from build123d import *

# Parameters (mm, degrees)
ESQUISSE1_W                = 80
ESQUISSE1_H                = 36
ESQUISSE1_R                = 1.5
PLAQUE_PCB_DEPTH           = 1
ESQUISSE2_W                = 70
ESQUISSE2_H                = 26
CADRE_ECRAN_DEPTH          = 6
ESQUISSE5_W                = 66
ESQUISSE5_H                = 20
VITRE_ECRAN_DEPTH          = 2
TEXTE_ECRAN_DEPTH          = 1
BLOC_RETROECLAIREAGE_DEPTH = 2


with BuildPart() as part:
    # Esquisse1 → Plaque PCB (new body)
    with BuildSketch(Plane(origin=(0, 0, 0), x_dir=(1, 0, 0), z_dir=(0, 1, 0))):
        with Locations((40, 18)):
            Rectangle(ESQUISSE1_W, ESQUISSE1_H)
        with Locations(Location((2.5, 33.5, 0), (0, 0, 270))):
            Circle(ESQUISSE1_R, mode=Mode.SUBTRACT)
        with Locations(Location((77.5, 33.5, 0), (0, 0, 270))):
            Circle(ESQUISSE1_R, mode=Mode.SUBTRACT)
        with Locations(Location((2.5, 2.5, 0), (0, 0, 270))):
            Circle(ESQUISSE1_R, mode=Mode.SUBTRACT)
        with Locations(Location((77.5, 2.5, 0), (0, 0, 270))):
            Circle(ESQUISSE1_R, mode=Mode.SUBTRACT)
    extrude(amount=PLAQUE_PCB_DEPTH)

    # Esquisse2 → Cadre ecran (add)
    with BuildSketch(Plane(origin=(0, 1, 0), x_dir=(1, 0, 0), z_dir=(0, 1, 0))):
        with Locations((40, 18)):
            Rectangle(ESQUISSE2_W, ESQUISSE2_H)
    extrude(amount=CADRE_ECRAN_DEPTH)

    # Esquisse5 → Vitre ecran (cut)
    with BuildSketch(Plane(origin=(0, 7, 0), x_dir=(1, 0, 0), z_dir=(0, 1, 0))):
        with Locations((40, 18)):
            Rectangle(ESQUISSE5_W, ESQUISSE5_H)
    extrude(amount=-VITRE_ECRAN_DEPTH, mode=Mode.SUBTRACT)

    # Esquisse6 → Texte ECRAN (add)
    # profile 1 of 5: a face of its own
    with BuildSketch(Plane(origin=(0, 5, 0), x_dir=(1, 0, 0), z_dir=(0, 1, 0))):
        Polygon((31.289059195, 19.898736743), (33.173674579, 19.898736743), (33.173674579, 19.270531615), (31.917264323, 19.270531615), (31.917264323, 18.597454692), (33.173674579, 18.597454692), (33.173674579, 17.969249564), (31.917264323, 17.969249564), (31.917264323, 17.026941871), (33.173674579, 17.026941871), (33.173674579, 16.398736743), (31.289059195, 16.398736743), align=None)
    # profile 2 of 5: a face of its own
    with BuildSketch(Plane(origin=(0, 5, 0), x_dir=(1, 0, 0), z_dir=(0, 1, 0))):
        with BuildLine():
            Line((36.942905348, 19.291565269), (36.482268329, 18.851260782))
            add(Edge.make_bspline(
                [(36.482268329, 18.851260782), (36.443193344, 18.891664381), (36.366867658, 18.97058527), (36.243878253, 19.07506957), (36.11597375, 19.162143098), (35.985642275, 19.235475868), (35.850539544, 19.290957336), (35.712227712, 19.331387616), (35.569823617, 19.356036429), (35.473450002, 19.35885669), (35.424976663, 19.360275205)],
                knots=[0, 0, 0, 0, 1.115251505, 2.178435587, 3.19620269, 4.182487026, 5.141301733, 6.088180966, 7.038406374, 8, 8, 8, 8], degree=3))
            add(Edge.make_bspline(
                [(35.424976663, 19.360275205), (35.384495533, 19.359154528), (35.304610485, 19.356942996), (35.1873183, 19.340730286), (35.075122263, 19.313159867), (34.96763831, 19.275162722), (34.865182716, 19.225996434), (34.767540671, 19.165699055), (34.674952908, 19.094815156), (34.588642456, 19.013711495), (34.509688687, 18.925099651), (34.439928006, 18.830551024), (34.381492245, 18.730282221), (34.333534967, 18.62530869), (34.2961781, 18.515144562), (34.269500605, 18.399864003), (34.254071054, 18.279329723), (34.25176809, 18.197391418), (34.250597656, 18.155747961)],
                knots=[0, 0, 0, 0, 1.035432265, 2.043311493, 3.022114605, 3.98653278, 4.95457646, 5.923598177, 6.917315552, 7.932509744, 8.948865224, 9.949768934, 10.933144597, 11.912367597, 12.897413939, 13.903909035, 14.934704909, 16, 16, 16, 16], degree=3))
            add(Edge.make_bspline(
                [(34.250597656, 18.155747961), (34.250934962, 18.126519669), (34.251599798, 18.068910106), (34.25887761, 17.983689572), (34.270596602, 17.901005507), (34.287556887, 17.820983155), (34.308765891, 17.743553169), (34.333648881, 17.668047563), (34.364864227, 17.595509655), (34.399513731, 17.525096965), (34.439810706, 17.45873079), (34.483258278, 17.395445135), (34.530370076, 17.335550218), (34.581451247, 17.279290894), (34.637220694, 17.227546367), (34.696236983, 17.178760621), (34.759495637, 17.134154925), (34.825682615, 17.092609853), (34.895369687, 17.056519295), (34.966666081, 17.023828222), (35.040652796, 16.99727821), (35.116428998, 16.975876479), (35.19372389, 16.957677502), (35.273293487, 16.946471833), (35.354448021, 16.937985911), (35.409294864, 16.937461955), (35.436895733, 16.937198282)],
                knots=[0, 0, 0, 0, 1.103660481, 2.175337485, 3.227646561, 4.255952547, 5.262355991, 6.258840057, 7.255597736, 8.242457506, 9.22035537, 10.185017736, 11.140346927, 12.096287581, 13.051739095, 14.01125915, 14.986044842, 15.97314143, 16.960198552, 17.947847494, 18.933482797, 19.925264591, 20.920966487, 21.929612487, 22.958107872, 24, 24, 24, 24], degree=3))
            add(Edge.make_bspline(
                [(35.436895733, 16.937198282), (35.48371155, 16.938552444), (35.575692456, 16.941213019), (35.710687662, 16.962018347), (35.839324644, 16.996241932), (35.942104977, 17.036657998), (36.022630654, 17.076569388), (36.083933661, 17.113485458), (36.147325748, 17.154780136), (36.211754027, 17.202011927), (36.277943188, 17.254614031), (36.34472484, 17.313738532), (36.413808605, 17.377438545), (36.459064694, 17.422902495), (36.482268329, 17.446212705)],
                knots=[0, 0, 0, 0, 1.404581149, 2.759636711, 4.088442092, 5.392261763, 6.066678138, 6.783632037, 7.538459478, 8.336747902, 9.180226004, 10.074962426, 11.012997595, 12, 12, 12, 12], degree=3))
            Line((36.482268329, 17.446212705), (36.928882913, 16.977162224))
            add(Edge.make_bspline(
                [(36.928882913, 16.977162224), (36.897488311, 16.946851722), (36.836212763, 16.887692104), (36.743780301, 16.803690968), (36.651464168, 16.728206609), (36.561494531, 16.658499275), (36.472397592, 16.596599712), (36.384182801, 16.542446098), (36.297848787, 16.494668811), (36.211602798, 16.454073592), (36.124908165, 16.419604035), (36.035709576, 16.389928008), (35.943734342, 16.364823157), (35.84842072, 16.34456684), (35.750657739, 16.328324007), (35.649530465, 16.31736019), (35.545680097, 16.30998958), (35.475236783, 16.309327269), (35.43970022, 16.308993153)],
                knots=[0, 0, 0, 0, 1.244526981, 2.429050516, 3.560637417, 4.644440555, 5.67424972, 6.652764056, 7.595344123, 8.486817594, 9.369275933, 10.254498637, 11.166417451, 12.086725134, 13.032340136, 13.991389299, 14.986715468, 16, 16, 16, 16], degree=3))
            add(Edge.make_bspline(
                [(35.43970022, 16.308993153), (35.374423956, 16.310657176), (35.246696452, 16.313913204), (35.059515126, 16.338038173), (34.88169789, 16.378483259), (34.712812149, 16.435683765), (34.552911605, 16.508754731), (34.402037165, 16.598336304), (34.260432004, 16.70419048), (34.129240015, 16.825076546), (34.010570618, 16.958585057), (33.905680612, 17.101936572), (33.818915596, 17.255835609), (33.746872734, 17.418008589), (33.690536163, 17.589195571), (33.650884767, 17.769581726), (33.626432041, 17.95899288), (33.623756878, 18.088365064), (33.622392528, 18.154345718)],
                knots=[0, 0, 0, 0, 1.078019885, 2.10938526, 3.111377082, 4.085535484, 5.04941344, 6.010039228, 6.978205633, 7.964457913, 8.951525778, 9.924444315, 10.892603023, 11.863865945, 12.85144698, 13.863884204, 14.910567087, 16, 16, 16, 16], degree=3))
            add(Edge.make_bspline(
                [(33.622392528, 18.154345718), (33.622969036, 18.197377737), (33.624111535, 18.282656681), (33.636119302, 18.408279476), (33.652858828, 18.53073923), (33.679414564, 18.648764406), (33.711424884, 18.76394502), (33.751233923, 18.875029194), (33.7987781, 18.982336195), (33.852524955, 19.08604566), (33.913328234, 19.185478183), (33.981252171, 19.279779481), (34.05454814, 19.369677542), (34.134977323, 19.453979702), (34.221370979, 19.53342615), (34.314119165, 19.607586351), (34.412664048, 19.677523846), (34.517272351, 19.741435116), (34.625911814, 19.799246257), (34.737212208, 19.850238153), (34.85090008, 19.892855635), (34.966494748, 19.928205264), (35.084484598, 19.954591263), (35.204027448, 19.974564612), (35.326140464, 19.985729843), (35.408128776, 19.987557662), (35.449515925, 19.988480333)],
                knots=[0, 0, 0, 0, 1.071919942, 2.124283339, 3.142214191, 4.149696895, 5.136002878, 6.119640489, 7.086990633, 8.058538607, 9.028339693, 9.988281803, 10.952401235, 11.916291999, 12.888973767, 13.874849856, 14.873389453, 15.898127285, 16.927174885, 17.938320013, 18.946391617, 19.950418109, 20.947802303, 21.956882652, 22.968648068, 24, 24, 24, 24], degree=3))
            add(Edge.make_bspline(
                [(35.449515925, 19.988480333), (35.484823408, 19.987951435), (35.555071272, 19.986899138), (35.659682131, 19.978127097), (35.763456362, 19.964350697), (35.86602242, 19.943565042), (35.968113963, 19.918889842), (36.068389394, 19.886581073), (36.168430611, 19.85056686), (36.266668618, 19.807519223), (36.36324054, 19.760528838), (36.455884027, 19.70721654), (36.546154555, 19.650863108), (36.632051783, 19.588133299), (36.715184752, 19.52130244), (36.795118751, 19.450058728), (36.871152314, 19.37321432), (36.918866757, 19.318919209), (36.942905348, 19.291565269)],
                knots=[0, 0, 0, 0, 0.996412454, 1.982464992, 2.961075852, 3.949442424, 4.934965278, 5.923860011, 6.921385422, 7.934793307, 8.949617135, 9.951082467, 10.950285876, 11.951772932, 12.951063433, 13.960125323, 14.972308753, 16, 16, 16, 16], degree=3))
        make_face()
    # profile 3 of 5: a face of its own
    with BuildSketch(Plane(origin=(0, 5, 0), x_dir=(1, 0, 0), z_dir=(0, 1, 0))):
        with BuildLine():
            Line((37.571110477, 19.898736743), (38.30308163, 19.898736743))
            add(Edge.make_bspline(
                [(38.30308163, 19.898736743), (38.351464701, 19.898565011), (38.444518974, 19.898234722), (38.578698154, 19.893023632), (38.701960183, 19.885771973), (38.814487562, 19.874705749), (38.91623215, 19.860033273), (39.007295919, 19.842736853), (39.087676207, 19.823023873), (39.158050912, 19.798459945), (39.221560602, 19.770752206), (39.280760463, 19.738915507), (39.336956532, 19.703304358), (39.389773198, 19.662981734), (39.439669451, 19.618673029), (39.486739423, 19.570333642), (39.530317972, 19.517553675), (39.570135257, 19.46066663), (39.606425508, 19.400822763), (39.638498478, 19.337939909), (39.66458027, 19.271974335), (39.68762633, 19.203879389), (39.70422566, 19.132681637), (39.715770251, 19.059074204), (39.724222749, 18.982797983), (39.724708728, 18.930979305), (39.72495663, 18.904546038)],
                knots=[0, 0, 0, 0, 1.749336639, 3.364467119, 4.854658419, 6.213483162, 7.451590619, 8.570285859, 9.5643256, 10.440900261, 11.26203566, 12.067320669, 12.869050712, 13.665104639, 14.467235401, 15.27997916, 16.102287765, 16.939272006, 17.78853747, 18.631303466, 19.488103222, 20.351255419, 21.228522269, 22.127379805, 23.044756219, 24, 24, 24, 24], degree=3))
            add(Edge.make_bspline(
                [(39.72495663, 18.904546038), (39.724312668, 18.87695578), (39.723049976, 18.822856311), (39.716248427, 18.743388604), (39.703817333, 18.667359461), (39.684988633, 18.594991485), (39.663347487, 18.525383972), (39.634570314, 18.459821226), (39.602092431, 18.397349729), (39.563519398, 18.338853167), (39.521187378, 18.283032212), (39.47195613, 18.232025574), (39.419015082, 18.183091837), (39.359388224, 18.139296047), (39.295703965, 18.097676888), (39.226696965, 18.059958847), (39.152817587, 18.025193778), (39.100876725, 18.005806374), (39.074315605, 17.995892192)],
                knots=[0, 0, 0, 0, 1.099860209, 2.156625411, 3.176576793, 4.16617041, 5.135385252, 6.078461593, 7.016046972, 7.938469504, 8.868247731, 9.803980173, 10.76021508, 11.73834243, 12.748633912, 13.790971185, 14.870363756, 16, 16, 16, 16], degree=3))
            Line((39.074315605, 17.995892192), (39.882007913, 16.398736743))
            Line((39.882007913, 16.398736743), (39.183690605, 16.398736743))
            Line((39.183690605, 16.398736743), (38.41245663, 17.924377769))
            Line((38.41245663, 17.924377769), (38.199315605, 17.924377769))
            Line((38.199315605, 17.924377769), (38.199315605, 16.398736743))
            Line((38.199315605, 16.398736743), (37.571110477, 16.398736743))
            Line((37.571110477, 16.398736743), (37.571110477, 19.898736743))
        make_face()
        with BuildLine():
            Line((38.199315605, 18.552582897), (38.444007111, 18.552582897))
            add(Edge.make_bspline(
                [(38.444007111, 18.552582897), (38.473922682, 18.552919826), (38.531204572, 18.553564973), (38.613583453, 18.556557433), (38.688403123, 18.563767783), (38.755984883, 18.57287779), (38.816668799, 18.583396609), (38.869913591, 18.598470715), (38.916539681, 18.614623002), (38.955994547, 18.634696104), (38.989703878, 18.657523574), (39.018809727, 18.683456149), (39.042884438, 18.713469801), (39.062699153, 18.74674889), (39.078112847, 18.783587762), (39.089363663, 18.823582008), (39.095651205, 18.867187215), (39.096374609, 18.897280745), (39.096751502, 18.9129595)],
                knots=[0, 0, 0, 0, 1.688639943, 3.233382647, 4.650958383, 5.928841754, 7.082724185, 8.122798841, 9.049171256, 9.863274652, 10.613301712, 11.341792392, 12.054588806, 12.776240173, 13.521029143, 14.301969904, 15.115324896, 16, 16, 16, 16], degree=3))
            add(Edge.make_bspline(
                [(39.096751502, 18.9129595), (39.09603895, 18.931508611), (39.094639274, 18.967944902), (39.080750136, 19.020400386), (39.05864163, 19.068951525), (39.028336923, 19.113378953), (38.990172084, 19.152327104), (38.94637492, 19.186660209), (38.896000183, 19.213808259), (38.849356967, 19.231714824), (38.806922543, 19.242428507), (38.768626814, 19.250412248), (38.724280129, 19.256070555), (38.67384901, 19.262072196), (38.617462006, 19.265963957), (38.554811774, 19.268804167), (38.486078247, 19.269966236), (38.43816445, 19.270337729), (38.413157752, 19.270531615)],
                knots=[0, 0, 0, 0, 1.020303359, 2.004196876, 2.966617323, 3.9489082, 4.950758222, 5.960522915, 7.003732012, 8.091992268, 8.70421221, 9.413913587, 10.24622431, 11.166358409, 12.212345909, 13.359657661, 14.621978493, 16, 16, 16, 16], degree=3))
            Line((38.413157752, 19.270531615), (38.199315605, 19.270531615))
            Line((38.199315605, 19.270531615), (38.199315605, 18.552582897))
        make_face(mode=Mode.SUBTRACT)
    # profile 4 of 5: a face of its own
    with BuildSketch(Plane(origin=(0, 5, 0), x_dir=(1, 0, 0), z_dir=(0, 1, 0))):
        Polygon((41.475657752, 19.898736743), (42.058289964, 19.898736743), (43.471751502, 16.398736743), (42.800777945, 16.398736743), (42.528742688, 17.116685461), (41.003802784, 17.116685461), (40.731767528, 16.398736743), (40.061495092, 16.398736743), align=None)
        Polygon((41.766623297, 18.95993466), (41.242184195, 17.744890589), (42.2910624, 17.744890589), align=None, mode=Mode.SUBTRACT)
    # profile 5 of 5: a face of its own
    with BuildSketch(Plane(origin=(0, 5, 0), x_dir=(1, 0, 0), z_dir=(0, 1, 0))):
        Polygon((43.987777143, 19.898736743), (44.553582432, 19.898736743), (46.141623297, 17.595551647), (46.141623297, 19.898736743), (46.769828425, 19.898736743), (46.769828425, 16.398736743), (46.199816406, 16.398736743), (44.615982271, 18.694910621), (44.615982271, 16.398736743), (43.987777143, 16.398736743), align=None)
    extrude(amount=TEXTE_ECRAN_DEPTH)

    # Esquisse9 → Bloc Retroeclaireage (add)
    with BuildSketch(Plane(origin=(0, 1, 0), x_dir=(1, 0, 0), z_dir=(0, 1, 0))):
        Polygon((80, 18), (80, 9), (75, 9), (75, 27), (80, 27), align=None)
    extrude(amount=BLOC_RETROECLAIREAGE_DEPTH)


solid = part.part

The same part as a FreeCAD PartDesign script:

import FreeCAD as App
import Part
import Sketcher
from FreeCAD import Vector

doc = App.newDocument("Part")
body = doc.addObject("PartDesign::Body", "Body")

sketch1 = doc.addObject("Sketcher::SketchObject", "Sketch")
body.addObject(sketch1)
sketch1.AttachmentSupport = (doc.XZ_Plane, [""])
sketch1.MapMode = "FlatFace"
sketch1.addGeometry([
    Part.LineSegment(Vector(0, -36, 0), Vector(0, 0, 0)),
    Part.LineSegment(Vector(0, 0, 0), Vector(80, 0, 0)),
    Part.LineSegment(Vector(80, 0, 0), Vector(80, -36, 0)),
    Part.LineSegment(Vector(80, -36, 0), Vector(0, -36, 0)),
    Part.Circle(Vector(2.5, -2.5, 0), Vector(0, 0, 1), 1.5),
    Part.Circle(Vector(77.5, -2.5, 0), Vector(0, 0, 1), 1.5),
    Part.Circle(Vector(2.5, -33.5, 0), Vector(0, 0, 1), 1.5),
    Part.Circle(Vector(77.5, -33.5, 0), Vector(0, 0, 1), 1.5),
], False)
sketch1.addConstraint([
    Sketcher.Constraint("Coincident", 0, 2, 1, 1),
    Sketcher.Constraint("Coincident", 1, 2, 2, 1),
    Sketcher.Constraint("Coincident", 2, 2, 3, 1),
    Sketcher.Constraint("Coincident", 3, 2, 0, 1),
    Sketcher.Constraint("Vertical", 0),
    Sketcher.Constraint("Horizontal", 1),
    Sketcher.Constraint("Vertical", 2),
    Sketcher.Constraint("Horizontal", 3),
    Sketcher.Constraint("Coincident", 0, 2, -1, 1),
    Sketcher.Constraint("Equal", 4, 5),
    Sketcher.Constraint("Equal", 5, 6),
    Sketcher.Constraint("Equal", 6, 7),
    Sketcher.Constraint("Horizontal", 4, 3, 5, 3),
    Sketcher.Constraint("Horizontal", 6, 3, 7, 3),
    Sketcher.Constraint("Vertical", 4, 3, 6, 3),
    Sketcher.Constraint("Vertical", 5, 3, 7, 3),
    Sketcher.Constraint("Diameter", 4, 3.0),
    Sketcher.Constraint("DistanceX", 1, 1, 1, 2, 80.0),
    Sketcher.Constraint("DistanceY", 0, 1, 0, 2, 36.0),
    Sketcher.Constraint("DistanceX", 4, 3, 5, 3, 75.0),
    Sketcher.Constraint("DistanceY", 6, 3, 4, 3, 31.0),
    Sketcher.Constraint("DistanceX", -1, 1, 4, 3, 2.5),
    Sketcher.Constraint("DistanceY", 4, 3, -1, 1, 2.5),
])
pad1 = doc.addObject("PartDesign::Pad", "Pad")
body.addObject(pad1)
pad1.Profile = sketch1
pad1.Length = 1
pad1.Reversed = True

sketch2 = doc.addObject("Sketcher::SketchObject", "Sketch001")
body.addObject(sketch2)
sketch2.AttachmentSupport = (doc.XZ_Plane, [""])
sketch2.MapMode = "FlatFace"
sketch2.AttachmentOffset = App.Placement(Vector(0, 0, -1), App.Rotation())
sketch2.addGeometry([
    Part.LineSegment(Vector(5, -31, 0), Vector(5, -5, 0)),
    Part.LineSegment(Vector(5, -5, 0), Vector(75, -5, 0)),
    Part.LineSegment(Vector(75, -5, 0), Vector(75, -31, 0)),
    Part.LineSegment(Vector(75, -31, 0), Vector(5, -31, 0)),
], False)
sketch2.addConstraint([
    Sketcher.Constraint("Coincident", 0, 2, 1, 1),
    Sketcher.Constraint("Coincident", 1, 2, 2, 1),
    Sketcher.Constraint("Coincident", 2, 2, 3, 1),
    Sketcher.Constraint("Coincident", 3, 2, 0, 1),
    Sketcher.Constraint("Vertical", 0),
    Sketcher.Constraint("Horizontal", 1),
    Sketcher.Constraint("Vertical", 2),
    Sketcher.Constraint("Horizontal", 3),
    Sketcher.Constraint("DistanceX", 1, 1, 1, 2, 70.0),
    Sketcher.Constraint("DistanceY", 0, 1, 0, 2, 26.0),
    Sketcher.Constraint("DistanceX", -1, 1, 0, 2, 5.0),
    Sketcher.Constraint("DistanceY", 0, 2, -1, 1, 5.0),
])
pad2 = doc.addObject("PartDesign::Pad", "Pad001")
body.addObject(pad2)
pad2.Profile = sketch2
pad2.Length = 6
pad2.Reversed = True

sketch3 = doc.addObject("Sketcher::SketchObject", "Sketch002")
body.addObject(sketch3)
sketch3.AttachmentSupport = (doc.XZ_Plane, [""])
sketch3.MapMode = "FlatFace"
sketch3.AttachmentOffset = App.Placement(Vector(0, 0, -7), App.Rotation())
sketch3.addGeometry([
    Part.LineSegment(Vector(7, -28, 0), Vector(7, -8, 0)),
    Part.LineSegment(Vector(7, -8, 0), Vector(73, -8, 0)),
    Part.LineSegment(Vector(73, -8, 0), Vector(73, -28, 0)),
    Part.LineSegment(Vector(73, -28, 0), Vector(7, -28, 0)),
], False)
sketch3.addConstraint([
    Sketcher.Constraint("Coincident", 0, 2, 1, 1),
    Sketcher.Constraint("Coincident", 1, 2, 2, 1),
    Sketcher.Constraint("Coincident", 2, 2, 3, 1),
    Sketcher.Constraint("Coincident", 3, 2, 0, 1),
    Sketcher.Constraint("Vertical", 0),
    Sketcher.Constraint("Horizontal", 1),
    Sketcher.Constraint("Vertical", 2),
    Sketcher.Constraint("Horizontal", 3),
    Sketcher.Constraint("DistanceX", 1, 1, 1, 2, 66.0),
    Sketcher.Constraint("DistanceY", 0, 1, 0, 2, 20.0),
    Sketcher.Constraint("DistanceX", -1, 1, 0, 2, 7.0),
    Sketcher.Constraint("DistanceY", 0, 2, -1, 1, 8.0),
])
pocket1 = doc.addObject("PartDesign::Pocket", "Pocket")
body.addObject(pocket1)
pocket1.Profile = sketch3
pocket1.Length = 2
pocket1.Reversed = True

sketch4 = doc.addObject("Sketcher::SketchObject", "Sketch003")
body.addObject(sketch4)
sketch4.AttachmentSupport = (doc.XZ_Plane, [""])
sketch4.MapMode = "FlatFace"
sketch4.AttachmentOffset = App.Placement(Vector(0, 0, -5), App.Rotation())
sketch4.addGeometry([
    Part.LineSegment(Vector(33.173675, -19.898737, 0), Vector(31.289059, -19.898737, 0)),
    Part.LineSegment(Vector(31.289059, -19.898737, 0), Vector(31.289059, -16.398737, 0)),
    Part.LineSegment(Vector(31.289059, -16.398737, 0), Vector(33.173675, -16.398737, 0)),
    Part.LineSegment(Vector(33.173675, -16.398737, 0), Vector(33.173675, -17.026942, 0)),
    Part.LineSegment(Vector(33.173675, -17.026942, 0), Vector(31.917264, -17.026942, 0)),
    Part.LineSegment(Vector(31.917264, -17.026942, 0), Vector(31.917264, -17.96925, 0)),
    Part.LineSegment(Vector(31.917264, -17.96925, 0), Vector(33.173675, -17.96925, 0)),
    Part.LineSegment(Vector(33.173675, -17.96925, 0), Vector(33.173675, -18.597455, 0)),
    Part.LineSegment(Vector(33.173675, -18.597455, 0), Vector(31.917264, -18.597455, 0)),
    Part.LineSegment(Vector(31.917264, -18.597455, 0), Vector(31.917264, -19.270532, 0)),
    Part.LineSegment(Vector(31.917264, -19.270532, 0), Vector(33.173675, -19.270532, 0)),
    Part.LineSegment(Vector(33.173675, -19.270532, 0), Vector(33.173675, -19.898737, 0)),
    Part.LineSegment(Vector(36.482268, -18.851261, 0), Vector(36.942905, -19.291565, 0)),
    Part.BSplineCurve([Vector(35.449516, -19.98848, 0), Vector(35.484823, -19.987951, 0), Vector(35.555071, -19.986899, 0), Vector(35.659682, -19.978127, 0), Vector(35.763456, -19.964351, 0), Vector(35.866022, -19.943565, 0), Vector(35.968114, -19.91889, 0), Vector(36.068389, -19.886581, 0), Vector(36.168431, -19.850567, 0), Vector(36.266669, -19.807519, 0), Vector(36.363241, -19.760529, 0), Vector(36.455884, -19.707217, 0), Vector(36.546155, -19.650863, 0), Vector(36.632052, -19.588133, 0), Vector(36.715185, -19.521302, 0), Vector(36.795119, -19.450059, 0), Vector(36.871152, -19.373214, 0), Vector(36.918867, -19.318919, 0), Vector(36.942905, -19.291565, 0)], [4, 1, 1, 1, 1, 1, 1, 1, 1, 1, 1, 1, 1, 1, 1, 1, 4], [0, 0.996412454, 1.982464992, 2.961075852, 3.949442424, 4.934965278, 5.923860011, 6.921385422, 7.934793307, 8.949617135, 9.951082467, 10.950285876, 11.951772932, 12.951063433, 13.960125323, 14.972308753, 16], False, 3, [1, 1, 1, 1, 1, 1, 1, 1, 1, 1, 1, 1, 1, 1, 1, 1, 1, 1, 1], False),
    Part.BSplineCurve([Vector(33.622393, -18.154346, 0), Vector(33.622969, -18.197378, 0), Vector(33.624112, -18.282657, 0), Vector(33.636119, -18.408279, 0), Vector(33.652859, -18.530739, 0), Vector(33.679415, -18.648764, 0), Vector(33.711425, -18.763945, 0), Vector(33.751234, -18.875029, 0), Vector(33.798778, -18.982336, 0), Vector(33.852525, -19.086046, 0), Vector(33.913328, -19.185478, 0), Vector(33.981252, -19.279779, 0), Vector(34.054548, -19.369678, 0), Vector(34.134977, -19.45398, 0), Vector(34.221371, -19.533426, 0), Vector(34.314119, -19.607586, 0), Vector(34.412664, -19.677524, 0), Vector(34.517272, -19.741435, 0), Vector(34.625912, -19.799246, 0), Vector(34.737212, -19.850238, 0), Vector(34.8509, -19.892856, 0), Vector(34.966495, -19.928205, 0), Vector(35.084485, -19.954591, 0), Vector(35.204027, -19.974565, 0), Vector(35.32614, -19.98573, 0), Vector(35.408129, -19.987558, 0), Vector(35.449516, -19.98848, 0)], [4, 1, 1, 1, 1, 1, 1, 1, 1, 1, 1, 1, 1, 1, 1, 1, 1, 1, 1, 1, 1, 1, 1, 1, 4], [0, 1.071919942, 2.124283339, 3.142214191, 4.149696895, 5.136002878, 6.119640489, 7.086990633, 8.058538607, 9.028339693, 9.988281803, 10.952401235, 11.916291999, 12.888973767, 13.874849856, 14.873389453, 15.898127285, 16.927174885, 17.938320013, 18.946391617, 19.950418109, 20.947802303, 21.956882652, 22.968648068, 24], False, 3, [1, 1, 1, 1, 1, 1, 1, 1, 1, 1, 1, 1, 1, 1, 1, 1, 1, 1, 1, 1, 1, 1, 1, 1, 1, 1, 1], False),
    Part.BSplineCurve([Vector(35.4397, -16.308993, 0), Vector(35.374424, -16.310657, 0), Vector(35.246696, -16.313913, 0), Vector(35.059515, -16.338038, 0), Vector(34.881698, -16.378483, 0), Vector(34.712812, -16.435684, 0), Vector(34.552912, -16.508755, 0), Vector(34.402037, -16.598336, 0), Vector(34.260432, -16.70419, 0), Vector(34.12924, -16.825077, 0), Vector(34.010571, -16.958585, 0), Vector(33.905681, -17.101937, 0), Vector(33.818916, -17.255836, 0), Vector(33.746873, -17.418009, 0), Vector(33.690536, -17.589196, 0), Vector(33.650885, -17.769582, 0), Vector(33.626432, -17.958993, 0), Vector(33.623757, -18.088365, 0), Vector(33.622393, -18.154346, 0)], [4, 1, 1, 1, 1, 1, 1, 1, 1, 1, 1, 1, 1, 1, 1, 1, 4], [0, 1.078019885, 2.10938526, 3.111377082, 4.085535484, 5.04941344, 6.010039228, 6.978205633, 7.964457913, 8.951525778, 9.924444315, 10.892603023, 11.863865945, 12.85144698, 13.863884204, 14.910567087, 16], False, 3, [1, 1, 1, 1, 1, 1, 1, 1, 1, 1, 1, 1, 1, 1, 1, 1, 1, 1, 1], False),
    Part.BSplineCurve([Vector(36.928883, -16.977162, 0), Vector(36.897488, -16.946852, 0), Vector(36.836213, -16.887692, 0), Vector(36.74378, -16.803691, 0), Vector(36.651464, -16.728207, 0), Vector(36.561495, -16.658499, 0), Vector(36.472398, -16.5966, 0), Vector(36.384183, -16.542446, 0), Vector(36.297849, -16.494669, 0), Vector(36.211603, -16.454074, 0), Vector(36.124908, -16.419604, 0), Vector(36.03571, -16.389928, 0), Vector(35.943734, -16.364823, 0), Vector(35.848421, -16.344567, 0), Vector(35.750658, -16.328324, 0), Vector(35.64953, -16.31736, 0), Vector(35.54568, -16.30999, 0), Vector(35.475237, -16.309327, 0), Vector(35.4397, -16.308993, 0)], [4, 1, 1, 1, 1, 1, 1, 1, 1, 1, 1, 1, 1, 1, 1, 1, 4], [0, 1.244526981, 2.429050516, 3.560637417, 4.644440555, 5.67424972, 6.652764056, 7.595344123, 8.486817594, 9.369275933, 10.254498637, 11.166417451, 12.086725134, 13.032340136, 13.991389299, 14.986715468, 16], False, 3, [1, 1, 1, 1, 1, 1, 1, 1, 1, 1, 1, 1, 1, 1, 1, 1, 1, 1, 1], False),
    Part.LineSegment(Vector(36.928883, -16.977162, 0), Vector(36.482268, -17.446213, 0)),
    Part.BSplineCurve([Vector(35.436896, -16.937198, 0), Vector(35.483712, -16.938552, 0), Vector(35.575692, -16.941213, 0), Vector(35.710688, -16.962018, 0), Vector(35.839325, -16.996242, 0), Vector(35.942105, -17.036658, 0), Vector(36.022631, -17.076569, 0), Vector(36.083934, -17.113485, 0), Vector(36.147326, -17.15478, 0), Vector(36.211754, -17.202012, 0), Vector(36.277943, -17.254614, 0), Vector(36.344725, -17.313739, 0), Vector(36.413809, -17.377439, 0), Vector(36.459065, -17.422902, 0), Vector(36.482268, -17.446213, 0)], [4, 1, 1, 1, 1, 1, 1, 1, 1, 1, 1, 1, 4], [0, 1.404581149, 2.759636711, 4.088442092, 5.392261763, 6.066678138, 6.783632037, 7.538459478, 8.336747902, 9.180226004, 10.074962426, 11.012997595, 12], False, 3, [1, 1, 1, 1, 1, 1, 1, 1, 1, 1, 1, 1, 1, 1, 1], False),
    Part.BSplineCurve([Vector(34.250598, -18.155748, 0), Vector(34.250935, -18.12652, 0), Vector(34.2516, -18.06891, 0), Vector(34.258878, -17.98369, 0), Vector(34.270597, -17.901006, 0), Vector(34.287557, -17.820983, 0), Vector(34.308766, -17.743553, 0), Vector(34.333649, -17.668048, 0), Vector(34.364864, -17.59551, 0), Vector(34.399514, -17.525097, 0), Vector(34.439811, -17.458731, 0), Vector(34.483258, -17.395445, 0), Vector(34.53037, -17.33555, 0), Vector(34.581451, -17.279291, 0), Vector(34.637221, -17.227546, 0), Vector(34.696237, -17.178761, 0), Vector(34.759496, -17.134155, 0), Vector(34.825683, -17.09261, 0), Vector(34.89537, -17.056519, 0), Vector(34.966666, -17.023828, 0), Vector(35.040653, -16.997278, 0), Vector(35.116429, -16.975876, 0), Vector(35.193724, -16.957678, 0), Vector(35.273293, -16.946472, 0), Vector(35.354448, -16.937986, 0), Vector(35.409295, -16.937462, 0), Vector(35.436896, -16.937198, 0)], [4, 1, 1, 1, 1, 1, 1, 1, 1, 1, 1, 1, 1, 1, 1, 1, 1, 1, 1, 1, 1, 1, 1, 1, 4], [0, 1.103660481, 2.175337485, 3.227646561, 4.255952547, 5.262355991, 6.258840057, 7.255597736, 8.242457506, 9.22035537, 10.185017736, 11.140346927, 12.096287581, 13.051739095, 14.01125915, 14.986044842, 15.97314143, 16.960198552, 17.947847494, 18.933482797, 19.925264591, 20.920966487, 21.929612487, 22.958107872, 24], False, 3, [1, 1, 1, 1, 1, 1, 1, 1, 1, 1, 1, 1, 1, 1, 1, 1, 1, 1, 1, 1, 1, 1, 1, 1, 1, 1, 1], False),
    Part.BSplineCurve([Vector(35.424977, -19.360275, 0), Vector(35.384496, -19.359155, 0), Vector(35.30461, -19.356943, 0), Vector(35.187318, -19.34073, 0), Vector(35.075122, -19.31316, 0), Vector(34.967638, -19.275163, 0), Vector(34.865183, -19.225996, 0), Vector(34.767541, -19.165699, 0), Vector(34.674953, -19.094815, 0), Vector(34.588642, -19.013711, 0), Vector(34.509689, -18.9251, 0), Vector(34.439928, -18.830551, 0), Vector(34.381492, -18.730282, 0), Vector(34.333535, -18.625309, 0), Vector(34.296178, -18.515145, 0), Vector(34.269501, -18.399864, 0), Vector(34.254071, -18.27933, 0), Vector(34.251768, -18.197391, 0), Vector(34.250598, -18.155748, 0)], [4, 1, 1, 1, 1, 1, 1, 1, 1, 1, 1, 1, 1, 1, 1, 1, 4], [0, 1.035432265, 2.043311493, 3.022114605, 3.98653278, 4.95457646, 5.923598177, 6.917315552, 7.932509744, 8.948865224, 9.949768934, 10.933144597, 11.912367597, 12.897413939, 13.903909035, 14.934704909, 16], False, 3, [1, 1, 1, 1, 1, 1, 1, 1, 1, 1, 1, 1, 1, 1, 1, 1, 1, 1, 1], False),
    Part.BSplineCurve([Vector(36.482268, -18.851261, 0), Vector(36.443193, -18.891664, 0), Vector(36.366868, -18.970585, 0), Vector(36.243878, -19.07507, 0), Vector(36.115974, -19.162143, 0), Vector(35.985642, -19.235476, 0), Vector(35.85054, -19.290957, 0), Vector(35.712228, -19.331388, 0), Vector(35.569824, -19.356036, 0), Vector(35.47345, -19.358857, 0), Vector(35.424977, -19.360275, 0)], [4, 1, 1, 1, 1, 1, 1, 1, 4], [0, 1.115251505, 2.178435587, 3.19620269, 4.182487026, 5.141301733, 6.088180966, 7.038406374, 8], False, 3, [1, 1, 1, 1, 1, 1, 1, 1, 1, 1, 1], False),
    Part.LineSegment(Vector(38.303082, -19.898737, 0), Vector(37.57111, -19.898737, 0)),
    Part.LineSegment(Vector(37.57111, -19.898737, 0), Vector(37.57111, -16.398737, 0)),
    Part.LineSegment(Vector(37.57111, -16.398737, 0), Vector(38.199316, -16.398737, 0)),
    Part.LineSegment(Vector(38.199316, -16.398737, 0), Vector(38.199316, -17.924378, 0)),
    Part.LineSegment(Vector(38.199316, -17.924378, 0), Vector(38.412457, -17.924378, 0)),
    Part.LineSegment(Vector(38.412457, -17.924378, 0), Vector(39.183691, -16.398737, 0)),
    Part.LineSegment(Vector(39.183691, -16.398737, 0), Vector(39.882008, -16.398737, 0)),
    Part.LineSegment(Vector(39.882008, -16.398737, 0), Vector(39.074316, -17.995892, 0)),
    Part.BSplineCurve([Vector(39.724957, -18.904546, 0), Vector(39.724313, -18.876956, 0), Vector(39.72305, -18.822856, 0), Vector(39.716248, -18.743389, 0), Vector(39.703817, -18.667359, 0), Vector(39.684989, -18.594991, 0), Vector(39.663347, -18.525384, 0), Vector(39.63457, -18.459821, 0), Vector(39.602092, -18.39735, 0), Vector(39.563519, -18.338853, 0), Vector(39.521187, -18.283032, 0), Vector(39.471956, -18.232026, 0), Vector(39.419015, -18.183092, 0), Vector(39.359388, -18.139296, 0), Vector(39.295704, -18.097677, 0), Vector(39.226697, -18.059959, 0), Vector(39.152818, -18.025194, 0), Vector(39.100877, -18.005806, 0), Vector(39.074316, -17.995892, 0)], [4, 1, 1, 1, 1, 1, 1, 1, 1, 1, 1, 1, 1, 1, 1, 1, 4], [0, 1.099860209, 2.156625411, 3.176576793, 4.16617041, 5.135385252, 6.078461593, 7.016046972, 7.938469504, 8.868247731, 9.803980173, 10.76021508, 11.73834243, 12.748633912, 13.790971185, 14.870363756, 16], False, 3, [1, 1, 1, 1, 1, 1, 1, 1, 1, 1, 1, 1, 1, 1, 1, 1, 1, 1, 1], False),
    Part.BSplineCurve([Vector(38.303082, -19.898737, 0), Vector(38.351465, -19.898565, 0), Vector(38.444519, -19.898235, 0), Vector(38.578698, -19.893024, 0), Vector(38.70196, -19.885772, 0), Vector(38.814488, -19.874706, 0), Vector(38.916232, -19.860033, 0), Vector(39.007296, -19.842737, 0), Vector(39.087676, -19.823024, 0), Vector(39.158051, -19.79846, 0), Vector(39.221561, -19.770752, 0), Vector(39.28076, -19.738916, 0), Vector(39.336957, -19.703304, 0), Vector(39.389773, -19.662982, 0), Vector(39.439669, -19.618673, 0), Vector(39.486739, -19.570334, 0), Vector(39.530318, -19.517554, 0), Vector(39.570135, -19.460667, 0), Vector(39.606426, -19.400823, 0), Vector(39.638498, -19.33794, 0), Vector(39.66458, -19.271974, 0), Vector(39.687626, -19.203879, 0), Vector(39.704226, -19.132682, 0), Vector(39.71577, -19.059074, 0), Vector(39.724223, -18.982798, 0), Vector(39.724709, -18.930979, 0), Vector(39.724957, -18.904546, 0)], [4, 1, 1, 1, 1, 1, 1, 1, 1, 1, 1, 1, 1, 1, 1, 1, 1, 1, 1, 1, 1, 1, 1, 1, 4], [0, 1.749336639, 3.364467119, 4.854658419, 6.213483162, 7.451590619, 8.570285859, 9.5643256, 10.440900261, 11.26203566, 12.067320669, 12.869050712, 13.665104639, 14.467235401, 15.27997916, 16.102287765, 16.939272006, 17.78853747, 18.631303466, 19.488103222, 20.351255419, 21.228522269, 22.127379805, 23.044756219, 24], False, 3, [1, 1, 1, 1, 1, 1, 1, 1, 1, 1, 1, 1, 1, 1, 1, 1, 1, 1, 1, 1, 1, 1, 1, 1, 1, 1, 1], False),
    Part.LineSegment(Vector(38.199316, -18.552583, 0), Vector(38.199316, -19.270532, 0)),
    Part.LineSegment(Vector(38.199316, -19.270532, 0), Vector(38.413158, -19.270532, 0)),
    Part.BSplineCurve([Vector(39.096752, -18.912959, 0), Vector(39.096039, -18.931509, 0), Vector(39.094639, -18.967945, 0), Vector(39.08075, -19.0204, 0), Vector(39.058642, -19.068952, 0), Vector(39.028337, -19.113379, 0), Vector(38.990172, -19.152327, 0), Vector(38.946375, -19.18666, 0), Vector(38.896, -19.213808, 0), Vector(38.849357, -19.231715, 0), Vector(38.806923, -19.242429, 0), Vector(38.768627, -19.250412, 0), Vector(38.72428, -19.256071, 0), Vector(38.673849, -19.262072, 0), Vector(38.617462, -19.265964, 0), Vector(38.554812, -19.268804, 0), Vector(38.486078, -19.269966, 0), Vector(38.438164, -19.270338, 0), Vector(38.413158, -19.270532, 0)], [4, 1, 1, 1, 1, 1, 1, 1, 1, 1, 1, 1, 1, 1, 1, 1, 4], [0, 1.020303359, 2.004196876, 2.966617323, 3.9489082, 4.950758222, 5.960522915, 7.003732012, 8.091992268, 8.70421221, 9.413913587, 10.24622431, 11.166358409, 12.212345909, 13.359657661, 14.621978493, 16], False, 3, [1, 1, 1, 1, 1, 1, 1, 1, 1, 1, 1, 1, 1, 1, 1, 1, 1, 1, 1], False),
    Part.BSplineCurve([Vector(38.444007, -18.552583, 0), Vector(38.473923, -18.55292, 0), Vector(38.531205, -18.553565, 0), Vector(38.613583, -18.556557, 0), Vector(38.688403, -18.563768, 0), Vector(38.755985, -18.572878, 0), Vector(38.816669, -18.583397, 0), Vector(38.869914, -18.598471, 0), Vector(38.91654, -18.614623, 0), Vector(38.955995, -18.634696, 0), Vector(38.989704, -18.657524, 0), Vector(39.01881, -18.683456, 0), Vector(39.042884, -18.71347, 0), Vector(39.062699, -18.746749, 0), Vector(39.078113, -18.783588, 0), Vector(39.089364, -18.823582, 0), Vector(39.095651, -18.867187, 0), Vector(39.096375, -18.897281, 0), Vector(39.096752, -18.912959, 0)], [4, 1, 1, 1, 1, 1, 1, 1, 1, 1, 1, 1, 1, 1, 1, 1, 4], [0, 1.688639943, 3.233382647, 4.650958383, 5.928841754, 7.082724185, 8.122798841, 9.049171256, 9.863274652, 10.613301712, 11.341792392, 12.054588806, 12.776240173, 13.521029143, 14.301969904, 15.115324896, 16], False, 3, [1, 1, 1, 1, 1, 1, 1, 1, 1, 1, 1, 1, 1, 1, 1, 1, 1, 1, 1], False),
    Part.LineSegment(Vector(38.444007, -18.552583, 0), Vector(38.199316, -18.552583, 0)),
    Part.LineSegment(Vector(42.05829, -19.898737, 0), Vector(41.475658, -19.898737, 0)),
    Part.LineSegment(Vector(41.475658, -19.898737, 0), Vector(40.061495, -16.398737, 0)),
    Part.LineSegment(Vector(40.061495, -16.398737, 0), Vector(40.731768, -16.398737, 0)),
    Part.LineSegment(Vector(40.731768, -16.398737, 0), Vector(41.003803, -17.116685, 0)),
    Part.LineSegment(Vector(41.003803, -17.116685, 0), Vector(42.528743, -17.116685, 0)),
    Part.LineSegment(Vector(42.528743, -17.116685, 0), Vector(42.800778, -16.398737, 0)),
    Part.LineSegment(Vector(42.800778, -16.398737, 0), Vector(43.471752, -16.398737, 0)),
    Part.LineSegment(Vector(43.471752, -16.398737, 0), Vector(42.05829, -19.898737, 0)),
    Part.LineSegment(Vector(41.766623, -18.959935, 0), Vector(42.291062, -17.744891, 0)),
    Part.LineSegment(Vector(42.291062, -17.744891, 0), Vector(41.242184, -17.744891, 0)),
    Part.LineSegment(Vector(41.242184, -17.744891, 0), Vector(41.766623, -18.959935, 0)),
    Part.LineSegment(Vector(44.553582, -19.898737, 0), Vector(43.987777, -19.898737, 0)),
    Part.LineSegment(Vector(43.987777, -19.898737, 0), Vector(43.987777, -16.398737, 0)),
    Part.LineSegment(Vector(43.987777, -16.398737, 0), Vector(44.615982, -16.398737, 0)),
    Part.LineSegment(Vector(44.615982, -16.398737, 0), Vector(44.615982, -18.694911, 0)),
    Part.LineSegment(Vector(44.615982, -18.694911, 0), Vector(46.199816, -16.398737, 0)),
    Part.LineSegment(Vector(46.199816, -16.398737, 0), Vector(46.769828, -16.398737, 0)),
    Part.LineSegment(Vector(46.769828, -16.398737, 0), Vector(46.769828, -19.898737, 0)),
    Part.LineSegment(Vector(46.769828, -19.898737, 0), Vector(46.141623, -19.898737, 0)),
    Part.LineSegment(Vector(46.141623, -19.898737, 0), Vector(46.141623, -17.595552, 0)),
    Part.LineSegment(Vector(46.141623, -17.595552, 0), Vector(44.553582, -19.898737, 0)),
], False)
sketch4.addConstraint([
    Sketcher.Constraint("Block", 13),
    Sketcher.Constraint("Block", 14),
    Sketcher.Constraint("Block", 15),
    Sketcher.Constraint("Block", 16),
    Sketcher.Constraint("Block", 18),
    Sketcher.Constraint("Block", 19),
    Sketcher.Constraint("Block", 20),
    Sketcher.Constraint("Block", 21),
    Sketcher.Constraint("Block", 30),
    Sketcher.Constraint("Block", 31),
    Sketcher.Constraint("Block", 34),
    Sketcher.Constraint("Block", 35),
    Sketcher.Constraint("Coincident", 0, 2, 1, 1),
    Sketcher.Constraint("Coincident", 1, 2, 2, 1),
    Sketcher.Constraint("Coincident", 2, 2, 3, 1),
    Sketcher.Constraint("Coincident", 3, 2, 4, 1),
    Sketcher.Constraint("Coincident", 4, 2, 5, 1),
    Sketcher.Constraint("Coincident", 5, 2, 6, 1),
    Sketcher.Constraint("Coincident", 6, 2, 7, 1),
    Sketcher.Constraint("Coincident", 7, 2, 8, 1),
    Sketcher.Constraint("Coincident", 8, 2, 9, 1),
    Sketcher.Constraint("Coincident", 9, 2, 10, 1),
    Sketcher.Constraint("Coincident", 10, 2, 11, 1),
    Sketcher.Constraint("Coincident", 11, 2, 0, 1),
    Sketcher.Constraint("Coincident", 12, 2, 13, 2),
    Sketcher.Constraint("Coincident", 16, 1, 17, 1),
    Sketcher.Constraint("Coincident", 17, 2, 18, 2),
    Sketcher.Constraint("Coincident", 21, 1, 12, 1),
    Sketcher.Constraint("Coincident", 22, 2, 23, 1),
    Sketcher.Constraint("Coincident", 23, 2, 24, 1),
    Sketcher.Constraint("Coincident", 24, 2, 25, 1),
    Sketcher.Constraint("Coincident", 25, 2, 26, 1),
    Sketcher.Constraint("Coincident", 26, 2, 27, 1),
    Sketcher.Constraint("Coincident", 27, 2, 28, 1),
    Sketcher.Constraint("Coincident", 28, 2, 29, 1),
    Sketcher.Constraint("Coincident", 29, 2, 30, 2),
    Sketcher.Constraint("Coincident", 31, 1, 22, 1),
    Sketcher.Constraint("Coincident", 32, 2, 33, 1),
    Sketcher.Constraint("Coincident", 33, 2, 34, 2),
    Sketcher.Constraint("Coincident", 35, 1, 36, 1),
    Sketcher.Constraint("Coincident", 36, 2, 32, 1),
    Sketcher.Constraint("Coincident", 37, 2, 38, 1),
    Sketcher.Constraint("Coincident", 38, 2, 39, 1),
    Sketcher.Constraint("Coincident", 39, 2, 40, 1),
    Sketcher.Constraint("Coincident", 40, 2, 41, 1),
    Sketcher.Constraint("Coincident", 41, 2, 42, 1),
    Sketcher.Constraint("Coincident", 42, 2, 43, 1),
    Sketcher.Constraint("Coincident", 43, 2, 44, 1),
    Sketcher.Constraint("Coincident", 44, 2, 37, 1),
    Sketcher.Constraint("Coincident", 45, 2, 46, 1),
    Sketcher.Constraint("Coincident", 46, 2, 47, 1),
    Sketcher.Constraint("Coincident", 47, 2, 45, 1),
    Sketcher.Constraint("Coincident", 48, 2, 49, 1),
    Sketcher.Constraint("Coincident", 49, 2, 50, 1),
    Sketcher.Constraint("Coincident", 50, 2, 51, 1),
    Sketcher.Constraint("Coincident", 51, 2, 52, 1),
    Sketcher.Constraint("Coincident", 52, 2, 53, 1),
    Sketcher.Constraint("Coincident", 53, 2, 54, 1),
    Sketcher.Constraint("Coincident", 54, 2, 55, 1),
    Sketcher.Constraint("Coincident", 55, 2, 56, 1),
    Sketcher.Constraint("Coincident", 56, 2, 57, 1),
    Sketcher.Constraint("Coincident", 57, 2, 48, 1),
    Sketcher.Constraint("Horizontal", 0),
    Sketcher.Constraint("Vertical", 1),
    Sketcher.Constraint("Horizontal", 2),
    Sketcher.Constraint("Vertical", 3),
    Sketcher.Constraint("Horizontal", 4),
    Sketcher.Constraint("Vertical", 5),
    Sketcher.Constraint("Horizontal", 6),
    Sketcher.Constraint("Vertical", 7),
    Sketcher.Constraint("Horizontal", 8),
    Sketcher.Constraint("Vertical", 9),
    Sketcher.Constraint("Horizontal", 10),
    Sketcher.Constraint("Vertical", 11),
    Sketcher.Constraint("Horizontal", 22),
    Sketcher.Constraint("Vertical", 23),
    Sketcher.Constraint("Horizontal", 24),
    Sketcher.Constraint("Vertical", 25),
    Sketcher.Constraint("Horizontal", 26),
    Sketcher.Constraint("Horizontal", 28),
    Sketcher.Constraint("Vertical", 32),
    Sketcher.Constraint("Horizontal", 33),
    Sketcher.Constraint("Horizontal", 36),
    Sketcher.Constraint("Horizontal", 37),
    Sketcher.Constraint("Horizontal", 39),
    Sketcher.Constraint("Horizontal", 41),
    Sketcher.Constraint("Horizontal", 43),
    Sketcher.Constraint("Horizontal", 46),
    Sketcher.Constraint("Horizontal", 48),
    Sketcher.Constraint("Vertical", 49),
    Sketcher.Constraint("Horizontal", 50),
    Sketcher.Constraint("Vertical", 51),
    Sketcher.Constraint("Horizontal", 53),
    Sketcher.Constraint("Vertical", 54),
    Sketcher.Constraint("Horizontal", 55),
    Sketcher.Constraint("Vertical", 56),
    Sketcher.Constraint("DistanceY", 1, 1, 1, 2, 3.5),
    Sketcher.Constraint("DistanceY", 23, 1, 23, 2, 3.5),
    Sketcher.Constraint("DistanceY", 49, 1, 49, 2, 3.5),
    Sketcher.Constraint("DistanceY", 54, 2, 54, 1, 3.5),
    Sketcher.Constraint("DistanceY", 44, 2, 42, 2, 3.5),
    Sketcher.Constraint("DistanceY", 54, 2, 50, 2, 3.5),
    Sketcher.Constraint("DistanceX", 25, 2, 29, 2, 0.875),
    Sketcher.Constraint("DistanceX", 32, 2, 29, 2, 0.875),
    Sketcher.Constraint("DistanceX", 42, 2, 49, 2, 1.186999),
    Sketcher.Constraint("Distance", 38, 3.774898),
    Sketcher.Constraint("DistanceX", 4, 2, 4, 1, 1.25641),
    Sketcher.Constraint("DistanceX", 6, 1, 6, 2, 1.25641),
    Sketcher.Constraint("DistanceX", 8, 2, 8, 1, 1.25641),
    Sketcher.Constraint("DistanceX", 10, 1, 10, 2, 1.25641),
    Sketcher.Constraint("DistanceX", 22, 2, 22, 1, 0.731971),
    Sketcher.Constraint("DistanceX", 26, 1, 26, 2, 0.213141),
    Sketcher.Constraint("DistanceX", 41, 1, 41, 2, 1.52494),
    Sketcher.Constraint("DistanceX", 46, 2, 46, 1, 1.048878),
    Sketcher.Constraint("DistanceY", 25, 2, 25, 1, 1.525641),
    Sketcher.Constraint("DistanceX", 33, 2, 37, 2, 3.0625),
    Sketcher.Constraint("DistanceX", 57, 2, 51, 2, 0.0624),
    Sketcher.Constraint("Distance", 29, 1.789769),
    Sketcher.Constraint("Distance", 40, 0.767759),
    Sketcher.Constraint("Distance", 42, 0.767759),
    Sketcher.Constraint("DistanceX", 0, 2, 0, 1, 1.884615),
    Sketcher.Constraint("DistanceX", 28, 1, 28, 2, 0.698317),
    Sketcher.Constraint("DistanceX", 37, 2, 37, 1, 0.582632),
    Sketcher.Constraint("DistanceX", 39, 1, 39, 2, 0.670272),
    Sketcher.Constraint("DistanceX", 43, 1, 43, 2, 0.670974),
    Sketcher.Constraint("DistanceX", 48, 2, 48, 1, 0.565805),
    Sketcher.Constraint("DistanceX", 53, 1, 53, 2, 0.570012),
    Sketcher.Constraint("DistanceX", 55, 2, 55, 1, 0.628205),
    Sketcher.Constraint("DistanceY", 3, 2, 3, 1, 0.628205),
    Sketcher.Constraint("DistanceY", 5, 2, 5, 1, 0.942308),
    Sketcher.Constraint("DistanceY", 7, 2, 7, 1, 0.628205),
    Sketcher.Constraint("DistanceY", 9, 2, 9, 1, 0.673077),
    Sketcher.Constraint("DistanceY", 51, 2, 51, 1, 2.296174),
    Sketcher.Constraint("DistanceY", 56, 1, 56, 2, 2.303185),
    Sketcher.Constraint("DistanceX", -1, 1, 0, 2, 31.289059),
    Sketcher.Constraint("DistanceY", 3, 2, -1, 1, 17.026942),
    Sketcher.Constraint("DistanceX", -1, 1, 27, 2, 39.183691),
    Sketcher.Constraint("DistanceX", -1, 1, 43, 2, 43.471752),
    Sketcher.Constraint("DistanceY", 45, 2, -1, 1, 17.744891),
    Sketcher.Constraint("DistanceY", 51, 2, -1, 1, 18.694911),
    Sketcher.Constraint("DistanceX", -1, 1, 53, 2, 46.769828),
    Sketcher.Constraint("DistanceY", 37, 2, 26, 2, 1.974359),
    Sketcher.Constraint("DistanceX", 24, 2, 38, 2, 1.862179),
    Sketcher.Constraint("DistanceX", 45, 2, 41, 2, 0.23768),
    Sketcher.Constraint("DistanceX", 46, 2, 47, 2, 0.524439),
    Sketcher.Constraint("DistanceY", 47, 2, 41, 2, 1.843249),
])
pad3 = doc.addObject("PartDesign::Pad", "Pad002")
body.addObject(pad3)
pad3.Profile = sketch4
pad3.Length = 1
pad3.Reversed = True

sketch5 = doc.addObject("Sketcher::SketchObject", "Sketch004")
body.addObject(sketch5)
sketch5.AttachmentSupport = (doc.XZ_Plane, [""])
sketch5.MapMode = "FlatFace"
sketch5.AttachmentOffset = App.Placement(Vector(0, 0, -1), App.Rotation())
sketch5.addGeometry([
    Part.LineSegment(Vector(80, -9, 0), Vector(80, -27, 0)),
    Part.LineSegment(Vector(80, -27, 0), Vector(75, -27, 0)),
    Part.LineSegment(Vector(75, -27, 0), Vector(75, -9, 0)),
    Part.LineSegment(Vector(75, -9, 0), Vector(80, -9, 0)),
], False)
sketch5.addConstraint([
    Sketcher.Constraint("Coincident", 0, 2, 1, 1),
    Sketcher.Constraint("Coincident", 1, 2, 2, 1),
    Sketcher.Constraint("Coincident", 2, 2, 3, 1),
    Sketcher.Constraint("Coincident", 3, 2, 0, 1),
    Sketcher.Constraint("Vertical", 0),
    Sketcher.Constraint("Horizontal", 1),
    Sketcher.Constraint("Vertical", 2),
    Sketcher.Constraint("Horizontal", 3),
    Sketcher.Constraint("DistanceX", 1, 2, 1, 1, 5.0),
    Sketcher.Constraint("DistanceY", 0, 2, 0, 1, 18.0),
    Sketcher.Constraint("DistanceX", -1, 1, 0, 2, 80.0),
    Sketcher.Constraint("DistanceY", 0, 2, -1, 1, 27.0),
])
pad4 = doc.addObject("PartDesign::Pad", "Pad003")
body.addObject(pad4)
pad4.Profile = sketch5
pad4.Length = 2
pad4.Reversed = True

doc.recompute()
